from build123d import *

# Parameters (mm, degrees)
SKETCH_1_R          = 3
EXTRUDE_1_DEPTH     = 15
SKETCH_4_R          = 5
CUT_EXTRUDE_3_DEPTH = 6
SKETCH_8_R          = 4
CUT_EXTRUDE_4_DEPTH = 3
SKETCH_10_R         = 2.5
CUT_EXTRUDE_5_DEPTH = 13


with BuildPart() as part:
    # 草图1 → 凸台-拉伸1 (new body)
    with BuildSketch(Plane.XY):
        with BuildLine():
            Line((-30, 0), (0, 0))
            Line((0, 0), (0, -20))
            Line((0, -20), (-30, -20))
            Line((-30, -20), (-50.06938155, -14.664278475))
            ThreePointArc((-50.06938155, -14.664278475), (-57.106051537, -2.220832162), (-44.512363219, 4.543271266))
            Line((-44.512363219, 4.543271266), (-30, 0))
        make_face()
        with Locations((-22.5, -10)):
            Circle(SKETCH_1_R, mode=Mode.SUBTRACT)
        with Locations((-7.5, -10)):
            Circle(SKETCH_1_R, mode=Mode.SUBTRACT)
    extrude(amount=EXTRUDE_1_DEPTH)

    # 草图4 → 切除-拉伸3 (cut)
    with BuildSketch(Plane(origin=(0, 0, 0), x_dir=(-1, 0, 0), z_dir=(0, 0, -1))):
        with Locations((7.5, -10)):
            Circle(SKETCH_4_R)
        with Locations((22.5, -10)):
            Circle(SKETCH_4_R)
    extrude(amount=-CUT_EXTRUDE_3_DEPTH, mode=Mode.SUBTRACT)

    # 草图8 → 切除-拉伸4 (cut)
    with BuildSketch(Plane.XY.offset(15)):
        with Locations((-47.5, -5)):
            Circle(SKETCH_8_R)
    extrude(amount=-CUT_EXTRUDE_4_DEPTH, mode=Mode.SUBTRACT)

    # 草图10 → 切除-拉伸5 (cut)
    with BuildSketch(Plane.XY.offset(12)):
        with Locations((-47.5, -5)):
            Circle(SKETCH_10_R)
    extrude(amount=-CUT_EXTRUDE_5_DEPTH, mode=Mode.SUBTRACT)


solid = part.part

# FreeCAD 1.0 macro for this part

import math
import FreeCAD as App
import Part
import Sketcher

doc = App.newDocument("Part")
params = doc.addObject("Spreadsheet::Sheet", "Params")
for row, (alias, value) in enumerate([
    ("sketch1_diameter", "6 mm"),
    ("sketch1_radius", "10 mm"),
    ("sketch1_width", "30 mm"),
    ("sketch1_height", "20 mm"),
    ("pad1_length", "15 mm"),
    ("sketch2_diameter", "10 mm"),
    ("pocket1_length", "6 mm"),
    ("sketch3_diameter", "8 mm"),
    ("pocket2_length", "3 mm"),
    ("sketch4_diameter", "5 mm"),
    ("pocket3_length", "13 mm"),
], start=1):
    params.set(f"A{row}", alias)
    params.set(f"B{row}", "=" + value)
    params.setAlias(f"B{row}", alias)

body = doc.addObject("PartDesign::Body", "Body")

# Sketch on XY plane
sketch1 = body.newObject("Sketcher::SketchObject", "Sketch")
sketch1.AttachmentSupport = (doc.getObject("XY_Plane"), [""])
sketch1.MapMode = "FlatFace"
sketch1.addGeometry([
    Part.LineSegment(App.Vector(0, 0, 0), App.Vector(-30, 0, 0)),  # 0
    Part.LineSegment(App.Vector(-30, 0, 0), App.Vector(-44.5, 4.5, 0)),  # 1
    Part.ArcOfCircle(Part.Circle(App.Vector(-47.5, -5, 0), App.Vector(0, 0, 1), 10), math.radians(73), math.radians(255)),  # 2
    Part.LineSegment(App.Vector(-50.1, -14.7, 0), App.Vector(-30, -20, 0)),  # 3
    Part.LineSegment(App.Vector(-30, -20, 0), App.Vector(0, -20, 0)),  # 4
    Part.LineSegment(App.Vector(0, -20, 0), App.Vector(0, 0, 0)),  # 5
    Part.Circle(App.Vector(-7.5, -10, 0), App.Vector(0, 0, 1), 3),  # 6
    Part.Circle(App.Vector(-22.5, -10, 0), App.Vector(0, 0, 1), 3),  # 7
], False)
sketch1.addConstraint([
    Sketcher.Constraint("Coincident", 0, 2, 1, 1),
    Sketcher.Constraint("Tangent", 1, 2, 2, 1),
    Sketcher.Constraint("Tangent", 2, 2, 3, 1),
    Sketcher.Constraint("Coincident", 3, 2, 4, 1),
    Sketcher.Constraint("Coincident", 4, 2, 5, 1),
    Sketcher.Constraint("Coincident", 5, 2, 0, 1),
    Sketcher.Constraint("Horizontal", 0),
    Sketcher.Constraint("Horizontal", 4),
    Sketcher.Constraint("Vertical", 5),
    Sketcher.Constraint("Coincident", 5, 2, -1, 1),
    Sketcher.Constraint("Equal", 6, 7),
    Sketcher.Constraint("Horizontal", 6, 3, 7, 3),
    Sketcher.Constraint("Vertical", 0, 2, 3, 2),
    Sketcher.Constraint("Diameter", 6, 6.0),
    Sketcher.Constraint("Radius", 2, 10.0),
    Sketcher.Constraint("DistanceX", 0, 2, 0, 1, 30.0),
    Sketcher.Constraint("DistanceY", 5, 1, 5, 2, 20.0),
    Sketcher.Constraint("DistanceY", 2, 3, -1, 1, 5.0),
    Sketcher.Constraint("DistanceY", 6, 3, -1, 1, 10.0),
    Sketcher.Constraint("DistanceX", 2, 3, 6, 3, 40.0),
    Sketcher.Constraint("DistanceX", 7, 3, 6, 3, 15.0),
    Sketcher.Constraint("DistanceX", 2, 3, -1, 1, 47.5),
])
sketch1.setExpression("Constraints[13]", "Params.sketch1_diameter")
sketch1.setExpression("Constraints[14]", "Params.sketch1_radius")
sketch1.setExpression("Constraints[15]", "Params.sketch1_width")
sketch1.setExpression("Constraints[16]", "Params.sketch1_height")
pad1 = body.newObject("PartDesign::Pad", "Pad")
pad1.Profile = sketch1
pad1.setExpression("Length", "Params.pad1_length")

# Sketch on XY plane
sketch2 = body.newObject("Sketcher::SketchObject", "Sketch001")
sketch2.AttachmentSupport = (doc.getObject("XY_Plane"), [""])
sketch2.MapMode = "FlatFace"
sketch2.addGeometry([
    Part.Circle(App.Vector(-8, -10, 0), App.Vector(0, 0, 1), 5),
    Part.Circle(App.Vector(-22, -10, 0), App.Vector(0, 0, 1), 5),
], False)
sketch2.addConstraint([
    Sketcher.Constraint("Equal", 0, 1),
    Sketcher.Constraint("Horizontal", 0, 3, 1, 3),
    Sketcher.Constraint("Diameter", 0, 10.0),
    Sketcher.Constraint("DistanceY", 0, 3, -1, 1, 10.0),
    Sketcher.Constraint("DistanceX", 1, 3, 0, 3, 15.0),
    Sketcher.Constraint("DistanceX", 0, 3, -1, 1, 7.5),
])
sketch2.setExpression("Constraints[2]", "Params.sketch2_diameter")
pocket1 = body.newObject("PartDesign::Pocket", "Pocket")
pocket1.Profile = sketch2
pocket1.setExpression("Length", "Params.pocket1_length")
pocket1.Reversed = True

# Sketch on XY plane
sketch3 = body.newObject("Sketcher::SketchObject", "Sketch002")
sketch3.AttachmentSupport = (doc.getObject("XY_Plane"), [""])
sketch3.MapMode = "FlatFace"
sketch3.AttachmentOffset = App.Placement(App.Vector(0, 0, 15), App.Rotation())
sketch3.addGeometry(Part.Circle(App.Vector(-47.5, -5, 0), App.Vector(0, 0, 1), 4), False)
sketch3.addConstraint([
    Sketcher.Constraint("Diameter", 0, 8.0),
    Sketcher.Constraint("DistanceY", 0, 3, -1, 1, 5.0),
    Sketcher.Constraint("DistanceX", 0, 3, -1, 1, 47.5),
])
sketch3.setExpression("Constraints[0]", "Params.sketch3_diameter")
pocket2 = body.newObject("PartDesign::Pocket", "Pocket001")
pocket2.Profile = sketch3
pocket2.setExpression("Length", "Params.pocket2_length")

# Sketch on XY plane
sketch4 = body.newObject("Sketcher::SketchObject", "Sketch003")
sketch4.AttachmentSupport = (doc.getObject("XY_Plane"), [""])
sketch4.MapMode = "FlatFace"
sketch4.AttachmentOffset = App.Placement(App.Vector(0, 0, 12), App.Rotation())
sketch4.addGeometry(Part.Circle(App.Vector(-47.5, -5, 0), App.Vector(0, 0, 1), 2.5), False)
sketch4.addConstraint([
    Sketcher.Constraint("Diameter", 0, 5.0),
    Sketcher.Constraint("DistanceY", 0, 3, -1, 1, 5.0),
    Sketcher.Constraint("DistanceX", 0, 3, -1, 1, 47.5),
])
sketch4.setExpression("Constraints[0]", "Params.sketch4_diameter")
pocket3 = body.newObject("PartDesign::Pocket", "Pocket002")
pocket3.Profile = sketch4
pocket3.setExpression("Length", "Params.pocket3_length")

doc.recompute()
